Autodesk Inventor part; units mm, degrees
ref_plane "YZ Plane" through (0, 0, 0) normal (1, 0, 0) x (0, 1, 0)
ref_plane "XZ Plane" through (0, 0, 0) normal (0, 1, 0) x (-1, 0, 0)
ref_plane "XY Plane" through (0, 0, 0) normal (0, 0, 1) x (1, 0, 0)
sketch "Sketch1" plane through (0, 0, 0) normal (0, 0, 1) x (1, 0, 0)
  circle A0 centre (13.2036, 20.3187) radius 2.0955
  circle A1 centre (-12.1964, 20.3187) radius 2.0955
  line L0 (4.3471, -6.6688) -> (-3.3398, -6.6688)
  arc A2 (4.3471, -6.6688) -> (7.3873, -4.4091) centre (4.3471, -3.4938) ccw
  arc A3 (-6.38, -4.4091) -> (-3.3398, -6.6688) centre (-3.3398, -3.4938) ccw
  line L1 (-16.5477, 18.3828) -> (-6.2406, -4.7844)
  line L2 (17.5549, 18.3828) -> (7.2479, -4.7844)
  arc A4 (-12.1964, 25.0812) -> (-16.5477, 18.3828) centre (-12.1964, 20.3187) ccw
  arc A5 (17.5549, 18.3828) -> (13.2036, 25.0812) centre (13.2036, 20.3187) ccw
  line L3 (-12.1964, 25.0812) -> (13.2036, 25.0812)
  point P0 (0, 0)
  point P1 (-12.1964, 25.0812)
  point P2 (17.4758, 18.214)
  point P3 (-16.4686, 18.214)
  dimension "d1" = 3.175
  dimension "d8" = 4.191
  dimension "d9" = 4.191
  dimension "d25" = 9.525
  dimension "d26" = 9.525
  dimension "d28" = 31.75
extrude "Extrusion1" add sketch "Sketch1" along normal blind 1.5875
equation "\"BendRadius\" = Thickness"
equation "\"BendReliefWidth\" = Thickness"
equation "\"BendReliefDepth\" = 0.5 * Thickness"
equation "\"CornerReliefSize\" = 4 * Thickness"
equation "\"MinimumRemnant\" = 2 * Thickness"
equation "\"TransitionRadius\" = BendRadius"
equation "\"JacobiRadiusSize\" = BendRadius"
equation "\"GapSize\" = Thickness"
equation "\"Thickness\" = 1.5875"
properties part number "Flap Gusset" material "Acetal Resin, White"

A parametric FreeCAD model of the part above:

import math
import FreeCAD as App
import Part
import Sketcher
Q = App.Units.Quantity

doc = App.newDocument("Part")
body = doc.addObject("PartDesign::Body", "Body")

sketch1 = doc.addObject("Sketcher::SketchObject", "Sketch")
body.addObject(sketch1)
sketch1.AttachmentSupport = (doc.XY_Plane, [""])
sketch1.MapMode = "FlatFace"
sketch1.addGeometry(Part.LineSegment(App.Vector(-3.3, -6.7, 0), App.Vector(4.3, -6.7, 0)), False)
sketch1.addGeometry(Part.ArcOfCircle(Part.Circle(App.Vector(4.3, -3.5, 0), App.Vector(0, 0, 1), 3.2), math.radians(-90), math.radians(-24)), False)
sketch1.addGeometry(Part.LineSegment(App.Vector(7.2, -4.8, 0), App.Vector(17.6, 18.4, 0)), False)
sketch1.addGeometry(Part.ArcOfCircle(Part.Circle(App.Vector(13.2, 20.3, 0), App.Vector(0, 0, 1), 4.8), math.radians(-24), math.radians(90)), False)
sketch1.addGeometry(Part.LineSegment(App.Vector(13.2, 25.1, 0), App.Vector(-12.2, 25.1, 0)), False)
sketch1.addGeometry(Part.ArcOfCircle(Part.Circle(App.Vector(-12.2, 20.3, 0), App.Vector(0, 0, 1), 4.8), math.radians(90), math.radians(204)), False)
sketch1.addGeometry(Part.LineSegment(App.Vector(-16.5, 18.4, 0), App.Vector(-6.2, -4.8, 0)), False)
sketch1.addGeometry(Part.ArcOfCircle(Part.Circle(App.Vector(-3.3, -3.5, 0), App.Vector(0, 0, 1), 3.2), math.radians(-156), math.radians(-90)), False)
sketch1.addGeometry(Part.Circle(App.Vector(-12.2, 20.3, 0), App.Vector(0, 0, 1), 2.1), False)
sketch1.addGeometry(Part.Circle(App.Vector(13.2, 20.3, 0), App.Vector(0, 0, 1), 2.1), False)
sketch1.addConstraint(Sketcher.Constraint("Tangent", 0, 2, 1, 1))
sketch1.addConstraint(Sketcher.Constraint("Tangent", 1, 2, 2, 1))
sketch1.addConstraint(Sketcher.Constraint("Tangent", 2, 2, 3, 1))
sketch1.addConstraint(Sketcher.Constraint("Tangent", 3, 2, 4, 1))
sketch1.addConstraint(Sketcher.Constraint("Tangent", 4, 2, 5, 1))
sketch1.addConstraint(Sketcher.Constraint("Tangent", 5, 2, 6, 1))
sketch1.addConstraint(Sketcher.Constraint("Tangent", 6, 2, 7, 1))
sketch1.addConstraint(Sketcher.Constraint("Tangent", 7, 2, 0, 1))
sketch1.addConstraint(Sketcher.Constraint("Horizontal", 0))
sketch1.addConstraint(Sketcher.Constraint("Horizontal", 4))
sketch1.addConstraint(Sketcher.Constraint("Coincident", 8, 3, 5, 3))
sketch1.addConstraint(Sketcher.Constraint("Coincident", 9, 3, 3, 3))
sketch1.addConstraint(Sketcher.Constraint("Equal", 3, 5))
sketch1.addConstraint(Sketcher.Constraint("Equal", 1, 7))
sketch1.addConstraint(Sketcher.Constraint("Equal", 8, 9))
sketch1.addConstraint(Sketcher.Constraint("Horizontal", 2, 2, 5, 2))
sketch1.addConstraint(Sketcher.Constraint("Diameter", 8, Q("0.165 in")))
sketch1.addConstraint(Sketcher.Constraint("Radius", 1, Q("0.125 in")))
sketch1.addConstraint(Sketcher.Constraint("Radius", 3, Q("0.1875 in")))
sketch1.addConstraint(Sketcher.Constraint("DistanceX", 4, 2, 4, 1, Q("1 in")))
sketch1.addConstraint(Sketcher.Constraint("DistanceX", 1, 3, 2, 2, Q("0.52 in")))
sketch1.addConstraint(Sketcher.Constraint("DistanceY", 1, 3, 3, 3, Q("0.9375 in")))
sketch1.addConstraint(Sketcher.Constraint("DistanceX", 7, 3, -1, 1, Q("0.1315 in")))
sketch1.addConstraint(Sketcher.Constraint("DistanceY", 1, 3, -1, 1, Q("3.4938 mm")))
pad1 = doc.addObject("PartDesign::Pad", "Pad")
body.addObject(pad1)
pad1.Profile = sketch1
pad1.Length = Q("0.0625 in")

doc.recompute()
